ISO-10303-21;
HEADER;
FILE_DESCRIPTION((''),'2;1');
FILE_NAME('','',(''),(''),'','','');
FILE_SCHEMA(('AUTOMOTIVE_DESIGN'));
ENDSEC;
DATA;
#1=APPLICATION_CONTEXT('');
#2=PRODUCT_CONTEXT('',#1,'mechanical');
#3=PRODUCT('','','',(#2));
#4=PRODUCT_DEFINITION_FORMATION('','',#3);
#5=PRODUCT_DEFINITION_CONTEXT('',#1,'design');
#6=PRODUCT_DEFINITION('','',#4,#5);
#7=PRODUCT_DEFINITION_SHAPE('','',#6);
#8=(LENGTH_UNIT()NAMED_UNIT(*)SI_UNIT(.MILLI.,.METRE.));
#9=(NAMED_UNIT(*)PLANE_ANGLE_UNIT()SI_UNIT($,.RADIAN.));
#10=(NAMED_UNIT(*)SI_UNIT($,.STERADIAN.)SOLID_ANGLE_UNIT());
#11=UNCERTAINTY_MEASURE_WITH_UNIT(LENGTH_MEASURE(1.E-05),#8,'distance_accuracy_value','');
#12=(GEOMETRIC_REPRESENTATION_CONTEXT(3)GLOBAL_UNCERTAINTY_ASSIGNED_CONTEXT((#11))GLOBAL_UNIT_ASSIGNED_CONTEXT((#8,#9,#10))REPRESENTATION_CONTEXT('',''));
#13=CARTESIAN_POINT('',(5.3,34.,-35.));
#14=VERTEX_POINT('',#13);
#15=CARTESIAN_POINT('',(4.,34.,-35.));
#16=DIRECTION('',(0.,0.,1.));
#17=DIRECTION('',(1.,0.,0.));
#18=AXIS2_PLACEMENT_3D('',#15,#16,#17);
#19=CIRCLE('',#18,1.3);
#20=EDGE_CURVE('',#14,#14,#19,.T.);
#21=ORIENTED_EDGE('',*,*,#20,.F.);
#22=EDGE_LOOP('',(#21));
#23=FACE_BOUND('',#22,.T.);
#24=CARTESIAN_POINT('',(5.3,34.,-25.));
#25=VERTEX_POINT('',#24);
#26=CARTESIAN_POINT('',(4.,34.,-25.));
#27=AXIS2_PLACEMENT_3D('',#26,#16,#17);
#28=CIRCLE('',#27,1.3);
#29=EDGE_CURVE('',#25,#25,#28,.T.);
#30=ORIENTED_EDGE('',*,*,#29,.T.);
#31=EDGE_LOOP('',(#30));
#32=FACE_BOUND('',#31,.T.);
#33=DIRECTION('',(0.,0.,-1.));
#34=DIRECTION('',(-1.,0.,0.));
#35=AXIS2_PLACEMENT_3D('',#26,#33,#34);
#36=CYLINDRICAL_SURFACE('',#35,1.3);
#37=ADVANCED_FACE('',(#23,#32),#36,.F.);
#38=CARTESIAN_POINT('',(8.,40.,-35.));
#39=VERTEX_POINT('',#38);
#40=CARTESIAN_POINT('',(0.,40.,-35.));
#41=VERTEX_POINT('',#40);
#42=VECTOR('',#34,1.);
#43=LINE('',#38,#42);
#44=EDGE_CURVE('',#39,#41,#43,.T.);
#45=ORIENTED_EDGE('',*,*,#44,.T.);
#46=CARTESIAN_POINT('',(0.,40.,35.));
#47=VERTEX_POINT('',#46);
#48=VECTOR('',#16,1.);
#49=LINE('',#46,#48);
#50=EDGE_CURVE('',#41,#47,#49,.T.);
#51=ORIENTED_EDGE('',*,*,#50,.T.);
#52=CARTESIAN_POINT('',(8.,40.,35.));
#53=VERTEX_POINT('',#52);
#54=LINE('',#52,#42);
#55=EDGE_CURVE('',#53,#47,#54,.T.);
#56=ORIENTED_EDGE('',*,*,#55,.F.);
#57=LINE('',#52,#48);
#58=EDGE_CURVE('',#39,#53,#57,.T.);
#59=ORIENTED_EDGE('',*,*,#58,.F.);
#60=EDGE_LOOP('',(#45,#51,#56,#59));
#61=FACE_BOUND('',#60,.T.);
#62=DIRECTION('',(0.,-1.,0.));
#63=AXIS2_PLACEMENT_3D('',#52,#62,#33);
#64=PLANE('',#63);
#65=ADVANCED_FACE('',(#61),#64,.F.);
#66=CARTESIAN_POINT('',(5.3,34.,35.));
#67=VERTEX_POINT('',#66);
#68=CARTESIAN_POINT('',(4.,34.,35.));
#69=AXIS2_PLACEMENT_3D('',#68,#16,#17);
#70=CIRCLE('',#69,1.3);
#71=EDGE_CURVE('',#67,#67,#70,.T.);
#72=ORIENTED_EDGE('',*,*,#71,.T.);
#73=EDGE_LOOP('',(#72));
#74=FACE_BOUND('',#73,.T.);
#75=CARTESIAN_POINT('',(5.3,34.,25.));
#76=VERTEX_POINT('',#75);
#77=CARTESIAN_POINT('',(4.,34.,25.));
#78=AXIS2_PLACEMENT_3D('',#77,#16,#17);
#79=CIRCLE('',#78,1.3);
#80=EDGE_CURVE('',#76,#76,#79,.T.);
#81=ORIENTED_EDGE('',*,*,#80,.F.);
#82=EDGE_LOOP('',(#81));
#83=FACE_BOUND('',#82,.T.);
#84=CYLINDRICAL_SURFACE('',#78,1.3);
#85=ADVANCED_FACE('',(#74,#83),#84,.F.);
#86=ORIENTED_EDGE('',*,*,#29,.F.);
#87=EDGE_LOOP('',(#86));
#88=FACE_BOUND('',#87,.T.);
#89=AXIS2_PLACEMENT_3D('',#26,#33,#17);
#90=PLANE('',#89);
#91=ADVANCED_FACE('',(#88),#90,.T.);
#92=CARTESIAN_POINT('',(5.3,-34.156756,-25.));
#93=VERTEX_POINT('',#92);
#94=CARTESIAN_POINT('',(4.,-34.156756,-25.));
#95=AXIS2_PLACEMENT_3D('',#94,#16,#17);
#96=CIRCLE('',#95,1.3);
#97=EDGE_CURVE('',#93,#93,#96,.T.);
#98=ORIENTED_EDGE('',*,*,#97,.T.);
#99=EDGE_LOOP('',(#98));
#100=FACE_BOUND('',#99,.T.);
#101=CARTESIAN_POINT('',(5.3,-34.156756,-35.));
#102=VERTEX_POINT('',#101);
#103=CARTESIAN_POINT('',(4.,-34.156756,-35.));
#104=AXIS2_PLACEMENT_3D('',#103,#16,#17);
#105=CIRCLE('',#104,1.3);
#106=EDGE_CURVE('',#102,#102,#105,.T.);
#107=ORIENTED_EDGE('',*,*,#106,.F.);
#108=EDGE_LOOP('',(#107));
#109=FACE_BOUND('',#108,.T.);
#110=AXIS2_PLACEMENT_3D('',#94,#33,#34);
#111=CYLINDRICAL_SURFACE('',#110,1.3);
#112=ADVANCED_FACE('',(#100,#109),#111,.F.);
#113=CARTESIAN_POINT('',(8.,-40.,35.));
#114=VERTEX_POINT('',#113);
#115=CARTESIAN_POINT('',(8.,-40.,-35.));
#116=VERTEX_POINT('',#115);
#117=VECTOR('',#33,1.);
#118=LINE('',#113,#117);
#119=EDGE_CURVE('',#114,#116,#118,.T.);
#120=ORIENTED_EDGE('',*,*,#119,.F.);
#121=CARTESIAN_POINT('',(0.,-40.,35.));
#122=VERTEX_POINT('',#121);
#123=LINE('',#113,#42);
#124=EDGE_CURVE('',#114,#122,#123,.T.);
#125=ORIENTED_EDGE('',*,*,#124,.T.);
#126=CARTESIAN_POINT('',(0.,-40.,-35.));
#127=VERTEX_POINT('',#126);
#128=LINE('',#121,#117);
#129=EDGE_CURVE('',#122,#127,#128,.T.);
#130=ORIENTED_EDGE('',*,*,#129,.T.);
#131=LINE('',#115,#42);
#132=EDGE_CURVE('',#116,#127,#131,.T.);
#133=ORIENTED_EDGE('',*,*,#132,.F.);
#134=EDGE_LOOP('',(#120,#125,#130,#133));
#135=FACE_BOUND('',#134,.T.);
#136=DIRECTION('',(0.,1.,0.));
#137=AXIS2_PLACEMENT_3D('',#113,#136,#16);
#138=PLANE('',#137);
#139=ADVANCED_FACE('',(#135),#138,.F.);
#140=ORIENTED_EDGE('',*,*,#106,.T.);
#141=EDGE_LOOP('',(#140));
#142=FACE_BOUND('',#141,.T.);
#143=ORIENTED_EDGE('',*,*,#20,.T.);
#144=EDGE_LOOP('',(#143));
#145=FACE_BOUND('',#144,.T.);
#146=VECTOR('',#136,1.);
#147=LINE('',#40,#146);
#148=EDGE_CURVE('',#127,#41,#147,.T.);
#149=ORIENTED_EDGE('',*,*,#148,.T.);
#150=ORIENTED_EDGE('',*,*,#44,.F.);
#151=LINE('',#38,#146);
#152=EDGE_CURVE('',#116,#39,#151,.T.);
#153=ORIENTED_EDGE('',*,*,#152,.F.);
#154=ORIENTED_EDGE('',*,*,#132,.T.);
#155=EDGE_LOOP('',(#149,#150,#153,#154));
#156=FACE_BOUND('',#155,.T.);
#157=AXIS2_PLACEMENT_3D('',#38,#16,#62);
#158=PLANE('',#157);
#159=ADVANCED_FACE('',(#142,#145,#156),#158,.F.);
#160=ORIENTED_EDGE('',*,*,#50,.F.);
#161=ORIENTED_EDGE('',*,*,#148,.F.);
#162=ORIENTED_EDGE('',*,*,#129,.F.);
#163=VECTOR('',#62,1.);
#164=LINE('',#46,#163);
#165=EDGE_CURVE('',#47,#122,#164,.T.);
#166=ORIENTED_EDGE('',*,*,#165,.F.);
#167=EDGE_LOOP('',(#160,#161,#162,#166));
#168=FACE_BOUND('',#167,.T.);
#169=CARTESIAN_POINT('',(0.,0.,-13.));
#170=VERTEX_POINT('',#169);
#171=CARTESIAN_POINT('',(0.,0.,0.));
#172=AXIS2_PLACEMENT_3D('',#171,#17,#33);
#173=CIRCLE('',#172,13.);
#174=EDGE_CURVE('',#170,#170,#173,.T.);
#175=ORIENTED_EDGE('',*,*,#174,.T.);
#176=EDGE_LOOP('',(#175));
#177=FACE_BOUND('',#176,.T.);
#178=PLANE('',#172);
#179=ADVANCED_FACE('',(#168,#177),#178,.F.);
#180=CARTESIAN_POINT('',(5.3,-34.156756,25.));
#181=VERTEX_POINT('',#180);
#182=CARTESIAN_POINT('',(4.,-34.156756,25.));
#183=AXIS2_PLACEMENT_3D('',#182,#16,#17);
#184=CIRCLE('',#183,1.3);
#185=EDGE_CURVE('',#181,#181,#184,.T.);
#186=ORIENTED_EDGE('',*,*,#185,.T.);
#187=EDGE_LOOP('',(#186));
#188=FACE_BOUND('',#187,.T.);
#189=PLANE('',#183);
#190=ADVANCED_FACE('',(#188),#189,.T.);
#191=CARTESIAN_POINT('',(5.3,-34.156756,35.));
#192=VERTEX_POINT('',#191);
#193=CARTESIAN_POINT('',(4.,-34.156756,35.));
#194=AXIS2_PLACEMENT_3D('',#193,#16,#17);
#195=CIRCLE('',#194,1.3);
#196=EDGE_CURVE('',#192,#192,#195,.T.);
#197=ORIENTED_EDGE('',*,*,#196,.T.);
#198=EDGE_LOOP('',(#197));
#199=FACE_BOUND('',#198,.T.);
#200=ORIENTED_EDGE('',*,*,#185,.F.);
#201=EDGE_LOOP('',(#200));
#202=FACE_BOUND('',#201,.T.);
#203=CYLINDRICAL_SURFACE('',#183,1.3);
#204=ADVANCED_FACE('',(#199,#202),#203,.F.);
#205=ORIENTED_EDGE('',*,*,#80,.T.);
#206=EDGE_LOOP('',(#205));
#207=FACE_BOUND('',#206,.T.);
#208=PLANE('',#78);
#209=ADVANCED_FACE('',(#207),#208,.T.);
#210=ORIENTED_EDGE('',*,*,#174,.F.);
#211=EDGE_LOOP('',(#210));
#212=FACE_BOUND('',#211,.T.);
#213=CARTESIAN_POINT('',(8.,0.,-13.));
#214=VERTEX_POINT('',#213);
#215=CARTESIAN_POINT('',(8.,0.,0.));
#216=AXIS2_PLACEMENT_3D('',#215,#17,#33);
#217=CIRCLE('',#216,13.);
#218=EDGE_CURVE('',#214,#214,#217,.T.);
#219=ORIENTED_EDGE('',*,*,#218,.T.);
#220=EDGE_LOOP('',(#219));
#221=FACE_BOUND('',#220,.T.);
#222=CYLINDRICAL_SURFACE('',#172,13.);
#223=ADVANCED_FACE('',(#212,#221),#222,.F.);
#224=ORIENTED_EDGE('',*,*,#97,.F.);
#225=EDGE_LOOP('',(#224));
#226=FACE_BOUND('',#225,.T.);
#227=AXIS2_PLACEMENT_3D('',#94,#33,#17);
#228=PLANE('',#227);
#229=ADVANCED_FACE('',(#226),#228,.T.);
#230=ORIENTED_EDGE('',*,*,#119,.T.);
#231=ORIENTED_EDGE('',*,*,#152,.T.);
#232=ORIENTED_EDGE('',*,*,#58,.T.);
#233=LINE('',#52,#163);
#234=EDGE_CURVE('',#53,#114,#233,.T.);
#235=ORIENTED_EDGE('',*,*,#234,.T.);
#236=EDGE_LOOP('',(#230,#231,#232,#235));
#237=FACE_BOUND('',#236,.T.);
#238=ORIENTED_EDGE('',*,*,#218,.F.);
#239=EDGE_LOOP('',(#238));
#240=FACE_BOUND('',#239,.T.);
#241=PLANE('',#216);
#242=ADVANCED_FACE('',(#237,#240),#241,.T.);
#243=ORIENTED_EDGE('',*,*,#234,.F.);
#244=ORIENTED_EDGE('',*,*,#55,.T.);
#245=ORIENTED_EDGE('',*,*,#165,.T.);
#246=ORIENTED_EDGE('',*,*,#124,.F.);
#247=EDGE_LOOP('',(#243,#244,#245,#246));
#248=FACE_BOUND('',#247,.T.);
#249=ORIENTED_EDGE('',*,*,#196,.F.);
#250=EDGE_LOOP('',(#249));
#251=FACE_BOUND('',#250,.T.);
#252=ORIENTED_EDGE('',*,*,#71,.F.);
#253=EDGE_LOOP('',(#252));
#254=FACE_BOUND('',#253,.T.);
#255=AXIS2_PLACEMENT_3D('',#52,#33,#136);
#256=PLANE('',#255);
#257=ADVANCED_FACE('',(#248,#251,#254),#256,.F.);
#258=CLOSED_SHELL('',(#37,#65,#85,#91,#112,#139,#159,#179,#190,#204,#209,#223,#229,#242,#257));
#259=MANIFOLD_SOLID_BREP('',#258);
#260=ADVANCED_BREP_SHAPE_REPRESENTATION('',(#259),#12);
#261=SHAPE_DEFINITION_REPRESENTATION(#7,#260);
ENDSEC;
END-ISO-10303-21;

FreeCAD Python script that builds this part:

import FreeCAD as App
import Part
import Sketcher


def add_polygon(sketch, points):
    """Adds a closed chain of lines whose ends are joined by coincident constraints."""
    first, n = sketch.GeometryCount, len(points)
    for a, b in zip(points, points[1:] + points[:1]):
        sketch.addGeometry(Part.LineSegment(App.Vector(*a, 0), App.Vector(*b, 0)), False)
    for i in range(n):
        sketch.addConstraint(Sketcher.Constraint("Coincident", first + i, 2, first + (i + 1) % n, 1))

doc = App.newDocument("Part")
body = doc.addObject("PartDesign::Body", "Body")

# Sketch on YZ plane
sketch1 = body.newObject("Sketcher::SketchObject", "Sketch")
sketch1.AttachmentSupport = (doc.getObject("YZ_Plane"), [""])
sketch1.MapMode = "FlatFace"
add_polygon(sketch1, [(40, 35), (-40, 35), (-40, -35), (40, -35)])  # lines 0-3
sketch1.addConstraint(Sketcher.Constraint("Horizontal", 0))
sketch1.addConstraint(Sketcher.Constraint("Vertical", 1))
sketch1.addConstraint(Sketcher.Constraint("Horizontal", 2))
sketch1.addConstraint(Sketcher.Constraint("Vertical", 3))
sketch1.addConstraint(Sketcher.Constraint("Symmetric", 0, 2, 2, 2, -1, 1))
sketch1.addConstraint(Sketcher.Constraint("DistanceX", 0, 2, 0, 1, 80.0))
sketch1.addConstraint(Sketcher.Constraint("DistanceY", 1, 2, 1, 1, 70.0))
pad1 = body.newObject("PartDesign::Pad", "Pad")
pad1.Profile = sketch1
pad1.Length = 8

# Sketch on YZ plane
sketch2 = body.newObject("Sketcher::SketchObject", "Sketch001")
sketch2.AttachmentSupport = (doc.getObject("YZ_Plane"), [""])
sketch2.MapMode = "FlatFace"
sketch2.AttachmentOffset = App.Placement(App.Vector(0, 0, 8), App.Rotation())
sketch2.addGeometry(Part.Circle(App.Vector(0, 0, 0), App.Vector(0, 0, 1), 13), False)
sketch2.addConstraint(Sketcher.Constraint("Coincident", 0, 3, -1, 1))
sketch2.addConstraint(Sketcher.Constraint("Diameter", 0, 26.0))
pocket1 = body.newObject("PartDesign::Pocket", "Pocket")
pocket1.Profile = sketch2
pocket1.Length = 8

# Sketch on XY plane
sketch3 = body.newObject("Sketcher::SketchObject", "Sketch002")
sketch3.AttachmentSupport = (doc.getObject("XY_Plane"), [""])
sketch3.MapMode = "FlatFace"
sketch3.AttachmentOffset = App.Placement(App.Vector(0, 0, 35), App.Rotation())
sketch3.addGeometry(Part.Circle(App.Vector(4, 34, 0), App.Vector(0, 0, 1), 1.3), False)
sketch3.addGeometry(Part.Circle(App.Vector(4, -34.156756, 0), App.Vector(0, 0, 1), 1.3), False)
sketch3.addConstraint(Sketcher.Constraint("Equal", 0, 1))
sketch3.addConstraint(Sketcher.Constraint("Vertical", 0, 3, 1, 3))
sketch3.addConstraint(Sketcher.Constraint("Diameter", 0, 2.6))
sketch3.addConstraint(Sketcher.Constraint("DistanceX", -1, 1, 0, 3, 4.0))
sketch3.addConstraint(Sketcher.Constraint("DistanceY", -1, 1, 0, 3, 34.0))
sketch3.addConstraint(Sketcher.Constraint("DistanceY", 1, 3, -1, 1, 34.156756))
pocket2 = body.newObject("PartDesign::Pocket", "Pocket001")
pocket2.Profile = sketch3
pocket2.Length = 10
doc.recompute()

mirrored = body.newObject("PartDesign::Mirrored", "Mirrored")
mirrored.Originals = [pocket2]
mirrored.MirrorPlane = (doc.getObject("XY_Plane"), [""])
body.Tip = mirrored

doc.recompute()
